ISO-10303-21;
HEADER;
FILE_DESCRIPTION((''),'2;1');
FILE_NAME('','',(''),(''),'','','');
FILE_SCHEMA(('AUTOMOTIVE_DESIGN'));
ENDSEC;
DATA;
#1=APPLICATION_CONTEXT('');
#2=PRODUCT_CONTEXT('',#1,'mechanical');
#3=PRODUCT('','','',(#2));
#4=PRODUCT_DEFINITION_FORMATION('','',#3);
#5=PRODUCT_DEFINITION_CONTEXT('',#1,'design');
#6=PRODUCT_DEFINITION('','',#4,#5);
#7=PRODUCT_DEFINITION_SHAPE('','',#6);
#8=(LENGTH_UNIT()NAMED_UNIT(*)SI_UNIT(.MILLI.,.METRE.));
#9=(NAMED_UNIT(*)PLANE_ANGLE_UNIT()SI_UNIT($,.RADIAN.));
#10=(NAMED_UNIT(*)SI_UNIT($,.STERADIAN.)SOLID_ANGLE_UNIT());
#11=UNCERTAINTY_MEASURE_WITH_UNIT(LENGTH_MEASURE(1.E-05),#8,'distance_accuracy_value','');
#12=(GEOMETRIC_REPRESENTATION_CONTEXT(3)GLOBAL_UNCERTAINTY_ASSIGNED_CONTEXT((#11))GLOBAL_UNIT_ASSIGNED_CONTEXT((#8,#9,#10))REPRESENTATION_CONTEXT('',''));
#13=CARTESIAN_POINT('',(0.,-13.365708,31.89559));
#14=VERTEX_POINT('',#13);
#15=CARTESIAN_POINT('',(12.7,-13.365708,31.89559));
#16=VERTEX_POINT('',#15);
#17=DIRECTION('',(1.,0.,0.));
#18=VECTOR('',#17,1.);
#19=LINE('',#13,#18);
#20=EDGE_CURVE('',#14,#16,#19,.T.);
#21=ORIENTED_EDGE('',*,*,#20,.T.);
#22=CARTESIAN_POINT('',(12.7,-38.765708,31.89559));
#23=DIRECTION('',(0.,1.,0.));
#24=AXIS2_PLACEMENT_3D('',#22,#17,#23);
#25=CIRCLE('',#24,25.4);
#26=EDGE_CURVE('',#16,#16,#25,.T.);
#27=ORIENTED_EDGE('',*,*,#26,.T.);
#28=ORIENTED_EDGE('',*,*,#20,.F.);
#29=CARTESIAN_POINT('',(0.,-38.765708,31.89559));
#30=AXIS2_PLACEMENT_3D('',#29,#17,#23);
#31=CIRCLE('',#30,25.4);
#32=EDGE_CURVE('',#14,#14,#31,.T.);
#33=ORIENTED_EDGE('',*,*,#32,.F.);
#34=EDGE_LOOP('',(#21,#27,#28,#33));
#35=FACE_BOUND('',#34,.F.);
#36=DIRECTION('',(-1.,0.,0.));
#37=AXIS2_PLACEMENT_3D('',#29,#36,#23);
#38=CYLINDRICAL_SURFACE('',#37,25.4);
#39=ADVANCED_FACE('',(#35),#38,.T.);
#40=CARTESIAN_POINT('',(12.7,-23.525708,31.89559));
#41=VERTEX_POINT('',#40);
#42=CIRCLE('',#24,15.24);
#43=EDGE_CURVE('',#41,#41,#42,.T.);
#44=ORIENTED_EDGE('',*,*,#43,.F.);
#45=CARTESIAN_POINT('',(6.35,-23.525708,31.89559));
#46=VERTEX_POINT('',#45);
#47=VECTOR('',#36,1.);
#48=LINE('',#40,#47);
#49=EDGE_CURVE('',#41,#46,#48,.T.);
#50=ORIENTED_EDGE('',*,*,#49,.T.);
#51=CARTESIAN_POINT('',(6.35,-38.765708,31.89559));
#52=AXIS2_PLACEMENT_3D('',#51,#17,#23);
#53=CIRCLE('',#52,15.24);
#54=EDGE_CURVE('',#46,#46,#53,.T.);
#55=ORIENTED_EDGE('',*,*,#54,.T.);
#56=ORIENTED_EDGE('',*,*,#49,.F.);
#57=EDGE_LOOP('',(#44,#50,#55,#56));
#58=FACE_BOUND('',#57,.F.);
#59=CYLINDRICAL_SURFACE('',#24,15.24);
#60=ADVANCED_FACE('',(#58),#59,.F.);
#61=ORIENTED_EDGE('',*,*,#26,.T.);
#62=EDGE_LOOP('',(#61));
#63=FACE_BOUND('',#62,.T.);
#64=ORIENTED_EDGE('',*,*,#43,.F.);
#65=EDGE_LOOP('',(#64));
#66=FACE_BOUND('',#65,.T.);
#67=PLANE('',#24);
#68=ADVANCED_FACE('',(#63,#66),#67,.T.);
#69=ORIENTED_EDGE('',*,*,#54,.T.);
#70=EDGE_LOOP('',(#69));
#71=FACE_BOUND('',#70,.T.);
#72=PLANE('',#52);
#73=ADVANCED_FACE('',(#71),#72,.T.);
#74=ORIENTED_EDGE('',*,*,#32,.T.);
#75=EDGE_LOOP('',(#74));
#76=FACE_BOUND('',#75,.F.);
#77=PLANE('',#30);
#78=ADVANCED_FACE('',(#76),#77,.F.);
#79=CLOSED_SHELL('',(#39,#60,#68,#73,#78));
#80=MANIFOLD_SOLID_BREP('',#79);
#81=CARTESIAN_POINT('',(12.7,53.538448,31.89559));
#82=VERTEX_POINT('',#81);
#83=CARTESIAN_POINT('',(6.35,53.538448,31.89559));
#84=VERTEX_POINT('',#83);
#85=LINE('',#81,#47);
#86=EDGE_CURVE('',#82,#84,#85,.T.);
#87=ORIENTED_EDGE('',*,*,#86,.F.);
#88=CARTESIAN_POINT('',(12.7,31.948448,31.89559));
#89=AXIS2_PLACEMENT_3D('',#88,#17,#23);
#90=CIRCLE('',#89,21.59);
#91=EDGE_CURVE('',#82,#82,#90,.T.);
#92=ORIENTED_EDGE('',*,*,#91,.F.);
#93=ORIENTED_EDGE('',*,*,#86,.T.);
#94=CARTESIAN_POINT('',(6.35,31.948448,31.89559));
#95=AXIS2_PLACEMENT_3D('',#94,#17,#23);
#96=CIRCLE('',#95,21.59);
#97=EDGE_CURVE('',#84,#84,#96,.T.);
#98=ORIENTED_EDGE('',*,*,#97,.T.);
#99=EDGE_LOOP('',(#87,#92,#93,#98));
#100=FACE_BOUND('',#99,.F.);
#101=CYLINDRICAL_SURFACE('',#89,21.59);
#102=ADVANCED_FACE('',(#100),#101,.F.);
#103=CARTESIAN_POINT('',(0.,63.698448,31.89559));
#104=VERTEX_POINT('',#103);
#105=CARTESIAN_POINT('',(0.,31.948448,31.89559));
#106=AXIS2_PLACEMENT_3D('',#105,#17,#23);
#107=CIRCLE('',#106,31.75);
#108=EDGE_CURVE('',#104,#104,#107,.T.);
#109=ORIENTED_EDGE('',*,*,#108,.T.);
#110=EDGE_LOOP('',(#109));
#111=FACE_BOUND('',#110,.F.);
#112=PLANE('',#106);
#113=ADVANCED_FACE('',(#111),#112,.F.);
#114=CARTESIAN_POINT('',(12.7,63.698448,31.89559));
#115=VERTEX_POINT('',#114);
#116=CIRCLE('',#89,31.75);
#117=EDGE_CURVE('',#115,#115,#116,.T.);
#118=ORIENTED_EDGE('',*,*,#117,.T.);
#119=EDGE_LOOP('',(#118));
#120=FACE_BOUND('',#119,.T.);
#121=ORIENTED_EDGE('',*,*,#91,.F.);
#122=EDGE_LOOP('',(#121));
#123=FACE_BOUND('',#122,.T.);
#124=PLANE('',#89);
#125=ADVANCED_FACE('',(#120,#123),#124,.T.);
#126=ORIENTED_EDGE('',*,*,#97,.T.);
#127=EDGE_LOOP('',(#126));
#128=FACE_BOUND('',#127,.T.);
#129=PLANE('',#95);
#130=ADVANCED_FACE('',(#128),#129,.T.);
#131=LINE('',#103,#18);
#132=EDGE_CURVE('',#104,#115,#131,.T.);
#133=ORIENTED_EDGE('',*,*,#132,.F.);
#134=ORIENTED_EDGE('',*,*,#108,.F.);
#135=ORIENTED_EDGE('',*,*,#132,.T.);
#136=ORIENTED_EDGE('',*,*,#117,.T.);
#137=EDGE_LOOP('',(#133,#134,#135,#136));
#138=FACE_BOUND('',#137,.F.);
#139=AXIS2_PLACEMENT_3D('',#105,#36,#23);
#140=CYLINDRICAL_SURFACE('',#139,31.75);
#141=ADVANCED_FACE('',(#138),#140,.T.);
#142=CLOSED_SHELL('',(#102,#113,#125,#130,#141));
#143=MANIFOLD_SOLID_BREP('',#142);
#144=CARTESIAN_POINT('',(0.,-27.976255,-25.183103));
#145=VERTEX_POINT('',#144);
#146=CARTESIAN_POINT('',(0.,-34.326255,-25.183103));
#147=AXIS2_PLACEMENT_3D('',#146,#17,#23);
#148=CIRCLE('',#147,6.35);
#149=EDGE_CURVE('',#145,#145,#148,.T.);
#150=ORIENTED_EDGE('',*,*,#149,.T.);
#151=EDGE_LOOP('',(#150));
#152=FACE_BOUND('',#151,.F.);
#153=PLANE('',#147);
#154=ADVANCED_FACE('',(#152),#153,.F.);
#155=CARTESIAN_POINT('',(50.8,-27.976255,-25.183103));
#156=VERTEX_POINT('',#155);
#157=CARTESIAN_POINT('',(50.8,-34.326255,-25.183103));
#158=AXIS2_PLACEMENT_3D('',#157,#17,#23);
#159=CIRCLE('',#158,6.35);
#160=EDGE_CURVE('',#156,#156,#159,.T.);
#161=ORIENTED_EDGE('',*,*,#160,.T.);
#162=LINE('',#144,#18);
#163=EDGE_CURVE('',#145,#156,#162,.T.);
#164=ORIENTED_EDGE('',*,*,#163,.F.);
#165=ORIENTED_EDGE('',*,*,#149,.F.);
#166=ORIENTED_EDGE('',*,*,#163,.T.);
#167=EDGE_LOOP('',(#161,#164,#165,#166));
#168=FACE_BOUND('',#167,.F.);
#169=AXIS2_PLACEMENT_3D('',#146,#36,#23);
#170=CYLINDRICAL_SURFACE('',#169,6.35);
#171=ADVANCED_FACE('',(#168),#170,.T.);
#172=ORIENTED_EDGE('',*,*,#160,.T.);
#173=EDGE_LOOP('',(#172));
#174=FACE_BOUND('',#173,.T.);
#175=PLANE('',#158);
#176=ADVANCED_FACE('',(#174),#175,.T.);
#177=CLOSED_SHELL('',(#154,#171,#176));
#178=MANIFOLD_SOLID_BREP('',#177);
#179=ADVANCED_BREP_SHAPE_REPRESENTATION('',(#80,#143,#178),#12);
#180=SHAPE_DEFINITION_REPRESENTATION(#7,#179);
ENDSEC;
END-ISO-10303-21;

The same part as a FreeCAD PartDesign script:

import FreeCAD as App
import Part
import Sketcher

V = App.Vector
Q = App.Units.Quantity

doc = App.newDocument("Part")
body = doc.addObject("PartDesign::Body", "Body")

# Sketch on YZ plane
sketch1 = body.newObject("Sketcher::SketchObject", "Sketch")
sketch1.AttachmentSupport = (doc.getObject("YZ_Plane"), [""])
sketch1.MapMode = "FlatFace"
sketch1.addGeometry(Part.Circle(V(-34.326255, -25.183103, 0), V(0, 0, 1), 6.35), False)
sketch1.addConstraint([
    Sketcher.Constraint("Diameter", 0, Q("0.5 in")),
    Sketcher.Constraint("DistanceX", 0, 3, -1, 1, Q("34.326255 mm")),
    Sketcher.Constraint("DistanceY", 0, 3, -1, 1, Q("25.183103 mm")),
])
pad1 = body.newObject("PartDesign::Pad", "Pad")
pad1.Profile = sketch1
pad1.Length = Q("2 in")
body2 = doc.addObject("PartDesign::Body", "Body001")
body2.AllowCompound = True

# Sketch on YZ plane
sketch2 = body2.newObject("Sketcher::SketchObject", "Sketch001")
sketch2.AttachmentSupport = (doc.getObject("YZ_Plane001"), [""])
sketch2.MapMode = "FlatFace"
sketch2.addGeometry([
    Part.Circle(V(-38.765708, 31.89559, 0), V(0, 0, 1), 25.4),
    Part.Circle(V(31.948448, 31.89559, 0), V(0, 0, 1), 31.75),
], False)
sketch2.addConstraint([
    Sketcher.Constraint("Horizontal", 0, 3, 1, 3),
    Sketcher.Constraint("Diameter", 0, Q("2 in")),
    Sketcher.Constraint("Diameter", 1, Q("2.5 in")),
    Sketcher.Constraint("DistanceY", -1, 1, 0, 3, Q("31.89559 mm")),
    Sketcher.Constraint("DistanceX", 0, 3, -1, 1, Q("38.765708 mm")),
    Sketcher.Constraint("DistanceX", -1, 1, 1, 3, Q("31.948448 mm")),
])
pad2 = body2.newObject("PartDesign::Pad", "Pad001")
pad2.Profile = sketch2
pad2.Length = Q("0.5 in")

# Sketch on YZ plane
sketch3 = body2.newObject("Sketcher::SketchObject", "Sketch002")
sketch3.AttachmentSupport = (doc.getObject("YZ_Plane001"), [""])
sketch3.MapMode = "FlatFace"
sketch3.AttachmentOffset = App.Placement(V(0, 0, 0.5 * 25.4), App.Rotation())
sketch3.addGeometry([
    Part.Circle(V(-38.765708, 31.89559, 0), V(0, 0, 1), 15.24),
    Part.Circle(V(31.948448, 31.89559, 0), V(0, 0, 1), 21.59),
], False)
sketch3.addConstraint([
    Sketcher.Constraint("Horizontal", 0, 3, 1, 3),
    Sketcher.Constraint("Diameter", 0, Q("1.2 in")),
    Sketcher.Constraint("Diameter", 1, Q("1.7 in")),
    Sketcher.Constraint("DistanceY", -1, 1, 0, 3, Q("31.89559 mm")),
    Sketcher.Constraint("DistanceX", 0, 3, -1, 1, Q("38.765708 mm")),
    Sketcher.Constraint("DistanceX", -1, 1, 1, 3, Q("31.948448 mm")),
])
pocket1 = body2.newObject("PartDesign::Pocket", "Pocket")
pocket1.Profile = sketch3
pocket1.Length = Q("0.25 in")

doc.recompute()
